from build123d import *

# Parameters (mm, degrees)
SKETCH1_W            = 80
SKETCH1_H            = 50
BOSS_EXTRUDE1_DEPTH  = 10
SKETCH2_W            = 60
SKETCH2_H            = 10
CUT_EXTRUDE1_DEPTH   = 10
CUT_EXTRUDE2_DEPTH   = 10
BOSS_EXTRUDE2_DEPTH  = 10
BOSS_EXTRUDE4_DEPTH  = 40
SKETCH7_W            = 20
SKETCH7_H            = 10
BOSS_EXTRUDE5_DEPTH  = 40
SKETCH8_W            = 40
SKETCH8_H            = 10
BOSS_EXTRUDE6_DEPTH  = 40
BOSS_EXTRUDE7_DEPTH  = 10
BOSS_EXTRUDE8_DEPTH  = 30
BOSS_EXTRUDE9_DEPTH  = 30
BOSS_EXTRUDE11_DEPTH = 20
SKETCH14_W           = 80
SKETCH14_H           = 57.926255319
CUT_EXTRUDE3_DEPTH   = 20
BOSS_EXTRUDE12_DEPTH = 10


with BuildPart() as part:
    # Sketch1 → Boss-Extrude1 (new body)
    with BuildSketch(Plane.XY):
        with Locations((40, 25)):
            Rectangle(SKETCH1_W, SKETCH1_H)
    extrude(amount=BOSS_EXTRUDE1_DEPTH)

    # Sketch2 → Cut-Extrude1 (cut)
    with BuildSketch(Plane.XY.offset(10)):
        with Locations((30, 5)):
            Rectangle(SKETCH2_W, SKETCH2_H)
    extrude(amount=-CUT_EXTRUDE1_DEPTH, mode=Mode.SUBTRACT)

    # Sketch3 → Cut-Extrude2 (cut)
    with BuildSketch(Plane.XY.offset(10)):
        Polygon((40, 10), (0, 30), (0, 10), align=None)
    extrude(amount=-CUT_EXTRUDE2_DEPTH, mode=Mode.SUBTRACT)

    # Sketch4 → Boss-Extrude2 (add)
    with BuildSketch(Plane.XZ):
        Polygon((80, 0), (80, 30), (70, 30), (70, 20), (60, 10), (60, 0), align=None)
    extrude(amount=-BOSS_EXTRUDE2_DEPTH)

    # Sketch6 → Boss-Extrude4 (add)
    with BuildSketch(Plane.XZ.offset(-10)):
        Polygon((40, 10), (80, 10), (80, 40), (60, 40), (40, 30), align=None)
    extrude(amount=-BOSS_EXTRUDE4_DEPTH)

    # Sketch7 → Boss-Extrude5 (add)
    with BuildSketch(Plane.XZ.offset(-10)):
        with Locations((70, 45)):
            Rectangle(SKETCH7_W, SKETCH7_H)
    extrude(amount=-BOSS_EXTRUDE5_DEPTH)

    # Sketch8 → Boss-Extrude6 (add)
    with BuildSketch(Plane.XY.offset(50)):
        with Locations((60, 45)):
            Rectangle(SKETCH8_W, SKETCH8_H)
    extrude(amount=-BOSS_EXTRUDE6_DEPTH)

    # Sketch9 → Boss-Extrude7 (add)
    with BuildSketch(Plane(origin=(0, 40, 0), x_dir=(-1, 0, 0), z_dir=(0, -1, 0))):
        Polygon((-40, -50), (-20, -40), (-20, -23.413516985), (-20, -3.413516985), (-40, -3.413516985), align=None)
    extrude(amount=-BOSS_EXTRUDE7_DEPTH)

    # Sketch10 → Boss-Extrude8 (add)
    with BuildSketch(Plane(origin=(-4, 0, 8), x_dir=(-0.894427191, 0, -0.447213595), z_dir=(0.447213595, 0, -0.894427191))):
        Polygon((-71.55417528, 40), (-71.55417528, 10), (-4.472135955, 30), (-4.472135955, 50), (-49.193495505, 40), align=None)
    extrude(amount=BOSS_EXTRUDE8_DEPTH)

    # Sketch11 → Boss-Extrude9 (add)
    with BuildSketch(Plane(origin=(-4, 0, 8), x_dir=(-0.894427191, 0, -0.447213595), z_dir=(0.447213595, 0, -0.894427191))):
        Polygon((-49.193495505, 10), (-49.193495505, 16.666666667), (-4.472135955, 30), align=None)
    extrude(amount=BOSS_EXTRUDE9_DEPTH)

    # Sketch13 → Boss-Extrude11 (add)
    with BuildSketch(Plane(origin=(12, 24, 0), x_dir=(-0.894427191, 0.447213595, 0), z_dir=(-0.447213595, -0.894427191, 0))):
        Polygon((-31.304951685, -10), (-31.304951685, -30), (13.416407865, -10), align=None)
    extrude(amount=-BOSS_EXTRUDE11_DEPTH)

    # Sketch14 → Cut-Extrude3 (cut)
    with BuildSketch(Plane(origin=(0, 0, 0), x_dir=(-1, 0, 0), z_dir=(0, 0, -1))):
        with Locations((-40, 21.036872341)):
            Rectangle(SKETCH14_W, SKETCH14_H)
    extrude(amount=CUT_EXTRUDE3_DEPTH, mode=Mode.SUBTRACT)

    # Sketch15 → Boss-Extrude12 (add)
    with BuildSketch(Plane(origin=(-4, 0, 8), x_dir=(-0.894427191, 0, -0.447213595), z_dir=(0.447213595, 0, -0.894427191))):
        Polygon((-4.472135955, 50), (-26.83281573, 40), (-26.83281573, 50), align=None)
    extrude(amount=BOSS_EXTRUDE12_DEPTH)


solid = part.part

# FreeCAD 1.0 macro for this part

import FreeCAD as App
import Part
import Sketcher


def add_polygon(sketch, points):
    """Adds a closed chain of lines whose ends are joined by coincident constraints."""
    first, n = sketch.GeometryCount, len(points)
    for a, b in zip(points, points[1:] + points[:1]):
        sketch.addGeometry(Part.LineSegment(App.Vector(*a, 0), App.Vector(*b, 0)), False)
    for i in range(n):
        sketch.addConstraint(Sketcher.Constraint("Coincident", first + i, 2, first + (i + 1) % n, 1))

doc = App.newDocument("Part")
body = doc.addObject("PartDesign::Body", "Body")

sketch1 = body.newObject("Sketcher::SketchObject", "Sketch")
sketch1.AttachmentSupport = (doc.getObject("XY_Plane"), [""])
sketch1.MapMode = "FlatFace"
add_polygon(sketch1, [(0, 50), (0, 0), (80, 0), (80, 50)])
sketch1.addConstraint([
    Sketcher.Constraint("Vertical", 0),
    Sketcher.Constraint("Horizontal", 1),
    Sketcher.Constraint("Vertical", 2),
    Sketcher.Constraint("Horizontal", 3),
    Sketcher.Constraint("Coincident", 0, 2, -1, 1),
    Sketcher.Constraint("DistanceX", 1, 1, 1, 2, 80.0),
    Sketcher.Constraint("DistanceY", 0, 2, 0, 1, 50.0),
])
pad1 = body.newObject("PartDesign::Pad", "Pad")
pad1.Profile = sketch1
pad1.Length = 10

sketch2 = body.newObject("Sketcher::SketchObject", "Sketch001")
sketch2.AttachmentSupport = (doc.getObject("XY_Plane"), [""])
sketch2.MapMode = "FlatFace"
sketch2.AttachmentOffset = App.Placement(App.Vector(0, 0, 10), App.Rotation())
add_polygon(sketch2, [(0, 10), (0, 0), (60, 0), (60, 10)])
sketch2.addConstraint([
    Sketcher.Constraint("Vertical", 0),
    Sketcher.Constraint("Horizontal", 1),
    Sketcher.Constraint("Vertical", 2),
    Sketcher.Constraint("Horizontal", 3),
    Sketcher.Constraint("Coincident", 0, 2, -1, 1),
    Sketcher.Constraint("DistanceX", 1, 1, 1, 2, 60.0),
    Sketcher.Constraint("DistanceY", 0, 2, 0, 1, 10.0),
])
pocket1 = body.newObject("PartDesign::Pocket", "Pocket")
pocket1.Profile = sketch2
pocket1.Length = 10

sketch3 = body.newObject("Sketcher::SketchObject", "Sketch002")
sketch3.AttachmentSupport = (doc.getObject("XY_Plane"), [""])
sketch3.MapMode = "FlatFace"
sketch3.AttachmentOffset = App.Placement(App.Vector(0, 0, 10), App.Rotation())
add_polygon(sketch3, [(40, 10), (0, 30), (0, 10)])
sketch3.addConstraint([
    Sketcher.Constraint("Vertical", 1),
    Sketcher.Constraint("Horizontal", 2),
    Sketcher.Constraint("PointOnObject", 0, 2, -2),
    Sketcher.Constraint("DistanceX", 2, 1, 2, 2, 40.0),
    Sketcher.Constraint("DistanceY", 1, 2, 1, 1, 20.0),
    Sketcher.Constraint("DistanceY", -1, 1, 0, 2, 30.0),
])
pocket2 = body.newObject("PartDesign::Pocket", "Pocket001")
pocket2.Profile = sketch3
pocket2.Length = 10

sketch4 = body.newObject("Sketcher::SketchObject", "Sketch003")
sketch4.AttachmentSupport = (doc.getObject("XZ_Plane"), [""])
sketch4.MapMode = "FlatFace"
add_polygon(sketch4, [(80, 0), (80, 30), (70, 30), (70, 20), (60, 10), (60, 0)])
sketch4.addConstraint([
    Sketcher.Constraint("Vertical", 0),
    Sketcher.Constraint("Horizontal", 1),
    Sketcher.Constraint("Vertical", 2),
    Sketcher.Constraint("Vertical", 4),
    Sketcher.Constraint("Horizontal", 5),
    Sketcher.Constraint("PointOnObject", 4, 2, -1),
    Sketcher.Constraint("Equal", 1, 2),
    Sketcher.Constraint("Equal", 2, 4),
    Sketcher.Constraint("DistanceX", 1, 2, 1, 1, 10.0),
    Sketcher.Constraint("DistanceX", 5, 1, 5, 2, 20.0),
    Sketcher.Constraint("DistanceY", 0, 1, 0, 2, 30.0),
    Sketcher.Constraint("DistanceX", -1, 1, 0, 2, 80.0),
])
pad2 = body.newObject("PartDesign::Pad", "Pad001")
pad2.Profile = sketch4
pad2.Length = 10
pad2.Reversed = True

sketch5 = body.newObject("Sketcher::SketchObject", "Sketch004")
sketch5.AttachmentSupport = (doc.getObject("XZ_Plane"), [""])
sketch5.MapMode = "FlatFace"
sketch5.AttachmentOffset = App.Placement(App.Vector(0, 0, -10), App.Rotation())
add_polygon(sketch5, [(40, 10), (80, 10), (80, 40), (60, 40), (40, 30)])
sketch5.addConstraint([
    Sketcher.Constraint("Horizontal", 0),
    Sketcher.Constraint("Vertical", 1),
    Sketcher.Constraint("Horizontal", 2),
    Sketcher.Constraint("Vertical", 4),
    Sketcher.Constraint("Equal", 2, 4),
    Sketcher.Constraint("DistanceX", 0, 1, 0, 2, 40.0),
    Sketcher.Constraint("DistanceX", 2, 2, 2, 1, 20.0),
    Sketcher.Constraint("DistanceY", 1, 1, 1, 2, 30.0),
    Sketcher.Constraint("DistanceX", -1, 1, 0, 2, 80.0),
    Sketcher.Constraint("DistanceY", -1, 1, 0, 2, 10.0),
])
pad3 = body.newObject("PartDesign::Pad", "Pad002")
pad3.Profile = sketch5
pad3.Length = 40
pad3.Reversed = True

sketch6 = body.newObject("Sketcher::SketchObject", "Sketch005")
sketch6.AttachmentSupport = (doc.getObject("XZ_Plane"), [""])
sketch6.MapMode = "FlatFace"
sketch6.AttachmentOffset = App.Placement(App.Vector(0, 0, -10), App.Rotation())
add_polygon(sketch6, [(60, 50), (60, 40), (80, 40), (80, 50)])
sketch6.addConstraint([
    Sketcher.Constraint("Vertical", 0),
    Sketcher.Constraint("Horizontal", 1),
    Sketcher.Constraint("Vertical", 2),
    Sketcher.Constraint("Horizontal", 3),
    Sketcher.Constraint("DistanceX", 1, 1, 1, 2, 20.0),
    Sketcher.Constraint("DistanceY", 0, 2, 0, 1, 10.0),
    Sketcher.Constraint("DistanceX", -1, 1, 0, 2, 60.0),
    Sketcher.Constraint("DistanceY", -1, 1, 0, 2, 40.0),
])
pad4 = body.newObject("PartDesign::Pad", "Pad003")
pad4.Profile = sketch6
pad4.Length = 40
pad4.Reversed = True

sketch7 = body.newObject("Sketcher::SketchObject", "Sketch006")
sketch7.AttachmentSupport = (doc.getObject("XY_Plane"), [""])
sketch7.MapMode = "FlatFace"
sketch7.AttachmentOffset = App.Placement(App.Vector(0, 0, 50), App.Rotation())
add_polygon(sketch7, [(40, 50), (40, 40), (80, 40), (80, 50)])
sketch7.addConstraint([
    Sketcher.Constraint("Vertical", 0),
    Sketcher.Constraint("Horizontal", 1),
    Sketcher.Constraint("Vertical", 2),
    Sketcher.Constraint("Horizontal", 3),
    Sketcher.Constraint("DistanceX", 1, 1, 1, 2, 40.0),
    Sketcher.Constraint("DistanceY", 0, 2, 0, 1, 10.0),
    Sketcher.Constraint("DistanceX", -1, 1, 0, 2, 40.0),
    Sketcher.Constraint("DistanceY", -1, 1, 0, 2, 40.0),
])
pad5 = body.newObject("PartDesign::Pad", "Pad004")
pad5.Profile = sketch7
pad5.Length = 40
pad5.Reversed = True

sketch8 = body.newObject("Sketcher::SketchObject", "Sketch007")
sketch8.AttachmentSupport = (doc.getObject("XZ_Plane"), [""])
sketch8.MapMode = "FlatFace"
sketch8.AttachmentOffset = App.Placement(App.Vector(0, 0, -40), App.Rotation())
add_polygon(sketch8, [(40, 50), (20, 40), (20, 3), (40, 3)])
sketch8.addConstraint([
    Sketcher.Constraint("Vertical", 1),
    Sketcher.Constraint("Horizontal", 2),
    Sketcher.Constraint("Vertical", 3),
    Sketcher.Constraint("DistanceX", 2, 1, 2, 2, 20.0),
    Sketcher.Constraint("DistanceX", -1, 1, 0, 2, 20.0),
    Sketcher.Constraint("DistanceY", -1, 1, 0, 2, 40.0),
    Sketcher.Constraint("DistanceY", -1, 1, 3, 2, 50.0),
    Sketcher.Constraint("DistanceY", 1, 2, 1, 1, 36.586483),
])
pad6 = body.newObject("PartDesign::Pad", "Pad005")
pad6.Profile = sketch8
pad6.Length = 10
pad6.Reversed = True

sketch9 = body.newObject("Sketcher::SketchObject", "Sketch008")
sketch9.Placement = App.Placement(App.Vector(-4, 0, 8), App.Rotation(App.Vector(-0.894427191, 0, -0.447213595), App.Vector(0, 1, 0), App.Vector(0.447213595, 0, -0.894427191), "ZXY"))
add_polygon(sketch9, [(-72, 40), (-72, 10), (-4, 30), (-4, 50), (-49, 40)])
sketch9.addConstraint([
    Sketcher.Constraint("Vertical", 0),
    Sketcher.Constraint("Vertical", 2),
    Sketcher.Constraint("Horizontal", 4),
    Sketcher.Constraint("DistanceY", 0, 2, 0, 1, 30.0),
    Sketcher.Constraint("DistanceY", 2, 1, 2, 2, 20.0),
    Sketcher.Constraint("Distance", 1, 70.0),
    Sketcher.Constraint("DistanceY", -1, 1, 0, 2, 10.0),
    Sketcher.Constraint("DistanceY", -1, 1, 1, 2, 30.0),
    Sketcher.Constraint("DistanceX", 4, 2, 4, 1, 22.36068),
    Sketcher.Constraint("DistanceX", 0, 2, -1, 1, 71.554175),
])
pad7 = body.newObject("PartDesign::Pad", "Pad006")
pad7.Profile = sketch9
pad7.Length = 30

sketch10 = body.newObject("Sketcher::SketchObject", "Sketch009")
sketch10.Placement = App.Placement(App.Vector(-4, 0, 8), App.Rotation(App.Vector(-0.894427191, 0, -0.447213595), App.Vector(0, 1, 0), App.Vector(0.447213595, 0, -0.894427191), "ZXY"))
add_polygon(sketch10, [(-49, 17), (-49, 10), (-4, 30)])
sketch10.addConstraint([
    Sketcher.Constraint("Vertical", 0),
    Sketcher.Constraint("DistanceY", -1, 1, 0, 2, 10.0),
    Sketcher.Constraint("DistanceY", -1, 1, 1, 2, 30.0),
    Sketcher.Constraint("DistanceY", 0, 2, 0, 1, 6.666667),
    Sketcher.Constraint("DistanceX", 0, 2, 1, 2, 44.72136),
    Sketcher.Constraint("DistanceX", 0, 2, -1, 1, 49.193495),
])
pad8 = body.newObject("PartDesign::Pad", "Pad007")
pad8.Profile = sketch10
pad8.Length = 30

sketch11 = body.newObject("Sketcher::SketchObject", "Sketch010")
sketch11.Placement = App.Placement(App.Vector(12, 24, 0), App.Rotation(App.Vector(-0.894427191, 0.447213595, 0), App.Vector(0, 0, -1), App.Vector(-0.447213595, -0.894427191, 0), "ZXY"))
add_polygon(sketch11, [(-31, -10), (-31, -30), (13, -10)])
sketch11.addConstraint([
    Sketcher.Constraint("Vertical", 0),
    Sketcher.Constraint("Horizontal", 2),
    Sketcher.Constraint("DistanceY", 0, 2, 0, 1, 20.0),
    Sketcher.Constraint("DistanceY", 0, 2, -1, 1, 30.0),
    Sketcher.Constraint("DistanceX", 2, 2, 2, 1, 44.72136),
    Sketcher.Constraint("DistanceX", 0, 2, -1, 1, 31.304952),
])
pad9 = body.newObject("PartDesign::Pad", "Pad008")
pad9.Profile = sketch11
pad9.Length = 20
pad9.Reversed = True

sketch12 = body.newObject("Sketcher::SketchObject", "Sketch011")
sketch12.AttachmentSupport = (doc.getObject("XY_Plane"), [""])
sketch12.MapMode = "FlatFace"
add_polygon(sketch12, [(80, 50), (80, -8), (0, -8), (0, 50)])
sketch12.addConstraint([
    Sketcher.Constraint("Vertical", 0),
    Sketcher.Constraint("Horizontal", 1),
    Sketcher.Constraint("Vertical", 2),
    Sketcher.Constraint("Horizontal", 3),
    Sketcher.Constraint("PointOnObject", 1, 2, -2),
    Sketcher.Constraint("DistanceX", 1, 2, 1, 1, 80.0),
    Sketcher.Constraint("DistanceY", -1, 1, 2, 2, 50.0),
    Sketcher.Constraint("DistanceY", 0, 2, 0, 1, 57.926255),
])
pocket3 = body.newObject("PartDesign::Pocket", "Pocket002")
pocket3.Profile = sketch12
pocket3.Length = 20

sketch13 = body.newObject("Sketcher::SketchObject", "Sketch012")
sketch13.Placement = App.Placement(App.Vector(-4, 0, 8), App.Rotation(App.Vector(-0.894427191, 0, -0.447213595), App.Vector(0, 1, 0), App.Vector(0.447213595, 0, -0.894427191), "ZXY"))
add_polygon(sketch13, [(-27, 40), (-4, 50), (-27, 50)])
sketch13.addConstraint([
    Sketcher.Constraint("Horizontal", 1),
    Sketcher.Constraint("Vertical", 2),
    Sketcher.Constraint("DistanceY", 2, 2, 2, 1, 10.0),
    Sketcher.Constraint("DistanceY", -1, 1, 0, 2, 50.0),
    Sketcher.Constraint("DistanceX", 1, 2, 1, 1, 22.36068),
    Sketcher.Constraint("DistanceX", 0, 2, -1, 1, 4.472136),
])
pad10 = body.newObject("PartDesign::Pad", "Pad009")
pad10.Profile = sketch13
pad10.Length = 10

doc.recompute()
